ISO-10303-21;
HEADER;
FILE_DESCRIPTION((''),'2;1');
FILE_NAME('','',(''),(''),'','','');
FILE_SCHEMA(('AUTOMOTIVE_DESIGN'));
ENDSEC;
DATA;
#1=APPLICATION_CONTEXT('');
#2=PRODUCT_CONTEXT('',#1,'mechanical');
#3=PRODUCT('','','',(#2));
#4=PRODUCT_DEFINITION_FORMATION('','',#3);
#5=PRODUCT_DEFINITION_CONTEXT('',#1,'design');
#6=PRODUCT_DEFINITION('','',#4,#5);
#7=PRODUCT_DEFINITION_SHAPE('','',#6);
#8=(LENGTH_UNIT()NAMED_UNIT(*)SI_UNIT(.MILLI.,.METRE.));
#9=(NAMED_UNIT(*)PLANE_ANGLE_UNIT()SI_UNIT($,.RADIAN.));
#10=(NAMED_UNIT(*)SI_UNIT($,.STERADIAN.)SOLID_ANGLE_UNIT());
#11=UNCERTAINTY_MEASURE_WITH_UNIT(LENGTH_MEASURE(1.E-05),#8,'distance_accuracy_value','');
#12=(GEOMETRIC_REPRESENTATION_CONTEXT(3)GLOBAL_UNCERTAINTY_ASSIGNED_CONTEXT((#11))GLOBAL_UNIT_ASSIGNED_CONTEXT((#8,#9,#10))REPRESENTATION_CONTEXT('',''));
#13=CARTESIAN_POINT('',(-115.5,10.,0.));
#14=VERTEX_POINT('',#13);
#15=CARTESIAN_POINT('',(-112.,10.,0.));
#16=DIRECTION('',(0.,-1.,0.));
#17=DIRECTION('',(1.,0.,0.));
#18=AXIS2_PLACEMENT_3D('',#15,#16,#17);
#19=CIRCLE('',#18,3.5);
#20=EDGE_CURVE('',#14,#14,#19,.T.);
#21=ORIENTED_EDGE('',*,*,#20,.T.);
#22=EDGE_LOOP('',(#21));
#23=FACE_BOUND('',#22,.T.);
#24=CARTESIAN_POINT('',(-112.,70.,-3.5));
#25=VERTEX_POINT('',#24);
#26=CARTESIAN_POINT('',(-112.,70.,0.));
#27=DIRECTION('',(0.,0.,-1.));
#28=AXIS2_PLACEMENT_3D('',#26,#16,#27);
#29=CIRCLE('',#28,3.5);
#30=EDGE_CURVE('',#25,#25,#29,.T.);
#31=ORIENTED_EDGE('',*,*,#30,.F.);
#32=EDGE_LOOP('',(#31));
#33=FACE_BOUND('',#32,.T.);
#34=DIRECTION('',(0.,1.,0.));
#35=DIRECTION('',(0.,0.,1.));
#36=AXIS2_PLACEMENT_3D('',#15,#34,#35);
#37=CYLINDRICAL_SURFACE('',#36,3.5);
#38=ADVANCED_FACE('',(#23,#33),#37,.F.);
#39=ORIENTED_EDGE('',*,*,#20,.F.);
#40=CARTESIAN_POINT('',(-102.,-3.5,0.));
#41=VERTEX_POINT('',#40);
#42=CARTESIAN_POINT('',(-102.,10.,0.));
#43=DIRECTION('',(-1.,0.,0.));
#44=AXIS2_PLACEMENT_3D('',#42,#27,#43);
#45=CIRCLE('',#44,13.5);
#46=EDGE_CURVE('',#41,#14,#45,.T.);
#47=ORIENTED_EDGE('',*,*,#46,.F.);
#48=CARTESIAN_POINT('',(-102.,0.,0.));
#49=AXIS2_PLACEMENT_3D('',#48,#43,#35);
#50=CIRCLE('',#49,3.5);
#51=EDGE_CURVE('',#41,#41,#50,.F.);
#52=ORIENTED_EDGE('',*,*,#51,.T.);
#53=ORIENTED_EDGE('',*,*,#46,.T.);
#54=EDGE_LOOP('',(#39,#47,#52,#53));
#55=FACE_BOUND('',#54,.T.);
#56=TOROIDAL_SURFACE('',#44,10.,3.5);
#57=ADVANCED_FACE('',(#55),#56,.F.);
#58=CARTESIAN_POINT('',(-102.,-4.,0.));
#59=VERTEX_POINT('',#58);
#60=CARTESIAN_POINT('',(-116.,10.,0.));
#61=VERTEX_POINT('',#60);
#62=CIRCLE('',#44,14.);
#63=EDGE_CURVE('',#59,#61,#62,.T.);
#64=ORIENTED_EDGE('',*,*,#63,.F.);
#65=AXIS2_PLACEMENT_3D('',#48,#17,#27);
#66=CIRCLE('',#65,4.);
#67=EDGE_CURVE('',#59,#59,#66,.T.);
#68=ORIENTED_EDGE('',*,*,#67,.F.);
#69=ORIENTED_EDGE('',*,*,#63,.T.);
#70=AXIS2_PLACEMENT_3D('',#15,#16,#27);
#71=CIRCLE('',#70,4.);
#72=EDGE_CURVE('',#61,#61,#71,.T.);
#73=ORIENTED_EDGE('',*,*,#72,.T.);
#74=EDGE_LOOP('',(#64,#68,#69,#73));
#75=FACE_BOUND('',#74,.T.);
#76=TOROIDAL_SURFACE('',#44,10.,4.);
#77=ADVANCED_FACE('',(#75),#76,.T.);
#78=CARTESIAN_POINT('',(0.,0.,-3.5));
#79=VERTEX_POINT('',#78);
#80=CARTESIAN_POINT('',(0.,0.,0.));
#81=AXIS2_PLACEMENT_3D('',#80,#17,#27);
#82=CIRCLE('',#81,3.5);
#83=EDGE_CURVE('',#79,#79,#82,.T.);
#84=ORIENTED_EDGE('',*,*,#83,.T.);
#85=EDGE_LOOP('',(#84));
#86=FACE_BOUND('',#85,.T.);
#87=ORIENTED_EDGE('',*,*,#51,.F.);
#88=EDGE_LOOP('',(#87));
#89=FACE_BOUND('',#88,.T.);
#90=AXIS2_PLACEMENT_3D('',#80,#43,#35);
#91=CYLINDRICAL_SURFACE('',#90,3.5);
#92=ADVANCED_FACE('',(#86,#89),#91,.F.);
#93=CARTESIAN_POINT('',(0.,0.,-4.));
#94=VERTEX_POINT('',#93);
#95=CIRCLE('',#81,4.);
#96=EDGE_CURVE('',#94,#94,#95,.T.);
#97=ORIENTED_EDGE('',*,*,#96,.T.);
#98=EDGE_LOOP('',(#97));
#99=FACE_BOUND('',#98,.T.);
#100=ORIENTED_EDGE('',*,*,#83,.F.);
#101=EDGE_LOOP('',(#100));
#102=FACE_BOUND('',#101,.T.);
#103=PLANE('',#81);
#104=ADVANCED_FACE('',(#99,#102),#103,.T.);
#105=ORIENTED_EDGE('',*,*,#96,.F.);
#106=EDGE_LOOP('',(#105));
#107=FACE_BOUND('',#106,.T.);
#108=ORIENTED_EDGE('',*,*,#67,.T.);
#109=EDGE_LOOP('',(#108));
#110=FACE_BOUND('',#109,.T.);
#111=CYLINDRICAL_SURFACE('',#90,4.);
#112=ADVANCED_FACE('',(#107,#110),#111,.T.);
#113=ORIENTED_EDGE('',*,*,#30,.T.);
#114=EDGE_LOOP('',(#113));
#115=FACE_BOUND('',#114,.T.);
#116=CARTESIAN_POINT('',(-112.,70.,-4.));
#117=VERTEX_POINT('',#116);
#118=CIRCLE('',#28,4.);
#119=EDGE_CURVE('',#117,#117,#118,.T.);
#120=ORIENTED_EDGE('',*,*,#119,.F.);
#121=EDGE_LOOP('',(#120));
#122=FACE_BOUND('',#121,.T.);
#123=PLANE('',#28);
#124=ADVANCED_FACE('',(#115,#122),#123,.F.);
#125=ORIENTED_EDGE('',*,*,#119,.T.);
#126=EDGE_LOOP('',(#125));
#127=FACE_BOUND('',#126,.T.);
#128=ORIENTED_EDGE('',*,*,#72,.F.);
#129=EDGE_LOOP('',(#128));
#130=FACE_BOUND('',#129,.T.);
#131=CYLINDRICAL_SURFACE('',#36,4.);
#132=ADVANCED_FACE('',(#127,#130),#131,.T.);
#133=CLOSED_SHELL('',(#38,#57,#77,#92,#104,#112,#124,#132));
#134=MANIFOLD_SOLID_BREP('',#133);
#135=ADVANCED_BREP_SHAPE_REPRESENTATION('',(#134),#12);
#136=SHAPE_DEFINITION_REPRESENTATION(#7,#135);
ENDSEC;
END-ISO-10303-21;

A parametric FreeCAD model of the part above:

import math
import FreeCAD as App
import Part
import Sketcher

V = App.Vector
Q = App.Units.Quantity


def faces_at(feature, points):
    """Names of the faces that lie closest to the given points."""
    faces = feature.Shape.Faces
    near = lambda p: min(range(len(faces)), key=lambda i: faces[i].distToShape(Part.Vertex(*p))[0])
    return sorted({f"Face{near(p) + 1}" for p in points})

doc = App.newDocument("Part")
params = doc.addObject("Spreadsheet::Sheet", "Params")
for row, (alias, value) in enumerate([
    ("sketch1_diameter", "8 mm"),
    ("sketch2_radius", "10 mm"),
    ("sketch2_width", "102 mm"),
    ("sketch2_height", "60 mm"),
    ("thickness_wall", "0.5 mm"),
], start=1):
    params.set(f"A{row}", alias)
    params.set(f"B{row}", "=" + value)
    params.setAlias(f"B{row}", alias)

body = doc.addObject("PartDesign::Body", "Body")

sketch1 = body.newObject("Sketcher::SketchObject", "Sketch")
sketch1.AttachmentSupport = (doc.getObject("YZ_Plane"), [""])
sketch1.MapMode = "FlatFace"
sketch1.addGeometry(Part.Circle(V(0, 0, 0), V(0, 0, 1), 4), False)
sketch1.addConstraint(Sketcher.Constraint("Coincident", 0, 3, -1, 1))
sketch1.addConstraint(Sketcher.Constraint("Diameter", 0, Q("8 mm")))
sketch1.setExpression("Constraints[1]", "Params.sketch1_diameter")

sketch2 = body.newObject("Sketcher::SketchObject", "Sketch001")
sketch2.AttachmentSupport = (doc.getObject("XY_Plane"), [""])
sketch2.MapMode = "FlatFace"
sketch2.addGeometry(Part.LineSegment(V(0, 0, 0), V(-102, 0, 0)), False)
sketch2.addGeometry(Part.ArcOfCircle(Part.Circle(V(-102, 10, 0), V(0, 0, 1), 10), math.radians(180), math.radians(270)), False)
sketch2.addGeometry(Part.LineSegment(V(-112, 10, 0), V(-112, 70, 0)), False)
sketch2.addConstraint(Sketcher.Constraint("Tangent", 0, 2, 1, 2))
sketch2.addConstraint(Sketcher.Constraint("Tangent", 1, 1, 2, 1))
sketch2.addConstraint(Sketcher.Constraint("Horizontal", 0))
sketch2.addConstraint(Sketcher.Constraint("Vertical", 2))
sketch2.addConstraint(Sketcher.Constraint("Coincident", 0, 1, -1, 1))
sketch2.addConstraint(Sketcher.Constraint("Radius", 1, Q("10 mm")))
sketch2.addConstraint(Sketcher.Constraint("DistanceX", 0, 2, 0, 1, Q("102 mm")))
sketch2.addConstraint(Sketcher.Constraint("DistanceY", 2, 1, 2, 2, Q("60 mm")))
sketch2.setExpression("Constraints[5]", "Params.sketch2_radius")
sketch2.setExpression("Constraints[6]", "Params.sketch2_width")
sketch2.setExpression("Constraints[7]", "Params.sketch2_height")
doc.recompute()

additivepipe = body.newObject("PartDesign::AdditivePipe", "AdditivePipe")
additivepipe.Profile = sketch1
additivepipe.Spine = (sketch2, ["Edge1", "Edge2", "Edge3"])
doc.recompute()

thickness = body.newObject("PartDesign::Thickness", "Thickness")
thickness.Base = (additivepipe, faces_at(additivepipe, [(-112, 70, 0), (0, 0, 0)]))
thickness.setExpression("Value", "Params.thickness_wall")
thickness.Reversed = True
thickness.Join = "Intersection"

doc.recompute()
